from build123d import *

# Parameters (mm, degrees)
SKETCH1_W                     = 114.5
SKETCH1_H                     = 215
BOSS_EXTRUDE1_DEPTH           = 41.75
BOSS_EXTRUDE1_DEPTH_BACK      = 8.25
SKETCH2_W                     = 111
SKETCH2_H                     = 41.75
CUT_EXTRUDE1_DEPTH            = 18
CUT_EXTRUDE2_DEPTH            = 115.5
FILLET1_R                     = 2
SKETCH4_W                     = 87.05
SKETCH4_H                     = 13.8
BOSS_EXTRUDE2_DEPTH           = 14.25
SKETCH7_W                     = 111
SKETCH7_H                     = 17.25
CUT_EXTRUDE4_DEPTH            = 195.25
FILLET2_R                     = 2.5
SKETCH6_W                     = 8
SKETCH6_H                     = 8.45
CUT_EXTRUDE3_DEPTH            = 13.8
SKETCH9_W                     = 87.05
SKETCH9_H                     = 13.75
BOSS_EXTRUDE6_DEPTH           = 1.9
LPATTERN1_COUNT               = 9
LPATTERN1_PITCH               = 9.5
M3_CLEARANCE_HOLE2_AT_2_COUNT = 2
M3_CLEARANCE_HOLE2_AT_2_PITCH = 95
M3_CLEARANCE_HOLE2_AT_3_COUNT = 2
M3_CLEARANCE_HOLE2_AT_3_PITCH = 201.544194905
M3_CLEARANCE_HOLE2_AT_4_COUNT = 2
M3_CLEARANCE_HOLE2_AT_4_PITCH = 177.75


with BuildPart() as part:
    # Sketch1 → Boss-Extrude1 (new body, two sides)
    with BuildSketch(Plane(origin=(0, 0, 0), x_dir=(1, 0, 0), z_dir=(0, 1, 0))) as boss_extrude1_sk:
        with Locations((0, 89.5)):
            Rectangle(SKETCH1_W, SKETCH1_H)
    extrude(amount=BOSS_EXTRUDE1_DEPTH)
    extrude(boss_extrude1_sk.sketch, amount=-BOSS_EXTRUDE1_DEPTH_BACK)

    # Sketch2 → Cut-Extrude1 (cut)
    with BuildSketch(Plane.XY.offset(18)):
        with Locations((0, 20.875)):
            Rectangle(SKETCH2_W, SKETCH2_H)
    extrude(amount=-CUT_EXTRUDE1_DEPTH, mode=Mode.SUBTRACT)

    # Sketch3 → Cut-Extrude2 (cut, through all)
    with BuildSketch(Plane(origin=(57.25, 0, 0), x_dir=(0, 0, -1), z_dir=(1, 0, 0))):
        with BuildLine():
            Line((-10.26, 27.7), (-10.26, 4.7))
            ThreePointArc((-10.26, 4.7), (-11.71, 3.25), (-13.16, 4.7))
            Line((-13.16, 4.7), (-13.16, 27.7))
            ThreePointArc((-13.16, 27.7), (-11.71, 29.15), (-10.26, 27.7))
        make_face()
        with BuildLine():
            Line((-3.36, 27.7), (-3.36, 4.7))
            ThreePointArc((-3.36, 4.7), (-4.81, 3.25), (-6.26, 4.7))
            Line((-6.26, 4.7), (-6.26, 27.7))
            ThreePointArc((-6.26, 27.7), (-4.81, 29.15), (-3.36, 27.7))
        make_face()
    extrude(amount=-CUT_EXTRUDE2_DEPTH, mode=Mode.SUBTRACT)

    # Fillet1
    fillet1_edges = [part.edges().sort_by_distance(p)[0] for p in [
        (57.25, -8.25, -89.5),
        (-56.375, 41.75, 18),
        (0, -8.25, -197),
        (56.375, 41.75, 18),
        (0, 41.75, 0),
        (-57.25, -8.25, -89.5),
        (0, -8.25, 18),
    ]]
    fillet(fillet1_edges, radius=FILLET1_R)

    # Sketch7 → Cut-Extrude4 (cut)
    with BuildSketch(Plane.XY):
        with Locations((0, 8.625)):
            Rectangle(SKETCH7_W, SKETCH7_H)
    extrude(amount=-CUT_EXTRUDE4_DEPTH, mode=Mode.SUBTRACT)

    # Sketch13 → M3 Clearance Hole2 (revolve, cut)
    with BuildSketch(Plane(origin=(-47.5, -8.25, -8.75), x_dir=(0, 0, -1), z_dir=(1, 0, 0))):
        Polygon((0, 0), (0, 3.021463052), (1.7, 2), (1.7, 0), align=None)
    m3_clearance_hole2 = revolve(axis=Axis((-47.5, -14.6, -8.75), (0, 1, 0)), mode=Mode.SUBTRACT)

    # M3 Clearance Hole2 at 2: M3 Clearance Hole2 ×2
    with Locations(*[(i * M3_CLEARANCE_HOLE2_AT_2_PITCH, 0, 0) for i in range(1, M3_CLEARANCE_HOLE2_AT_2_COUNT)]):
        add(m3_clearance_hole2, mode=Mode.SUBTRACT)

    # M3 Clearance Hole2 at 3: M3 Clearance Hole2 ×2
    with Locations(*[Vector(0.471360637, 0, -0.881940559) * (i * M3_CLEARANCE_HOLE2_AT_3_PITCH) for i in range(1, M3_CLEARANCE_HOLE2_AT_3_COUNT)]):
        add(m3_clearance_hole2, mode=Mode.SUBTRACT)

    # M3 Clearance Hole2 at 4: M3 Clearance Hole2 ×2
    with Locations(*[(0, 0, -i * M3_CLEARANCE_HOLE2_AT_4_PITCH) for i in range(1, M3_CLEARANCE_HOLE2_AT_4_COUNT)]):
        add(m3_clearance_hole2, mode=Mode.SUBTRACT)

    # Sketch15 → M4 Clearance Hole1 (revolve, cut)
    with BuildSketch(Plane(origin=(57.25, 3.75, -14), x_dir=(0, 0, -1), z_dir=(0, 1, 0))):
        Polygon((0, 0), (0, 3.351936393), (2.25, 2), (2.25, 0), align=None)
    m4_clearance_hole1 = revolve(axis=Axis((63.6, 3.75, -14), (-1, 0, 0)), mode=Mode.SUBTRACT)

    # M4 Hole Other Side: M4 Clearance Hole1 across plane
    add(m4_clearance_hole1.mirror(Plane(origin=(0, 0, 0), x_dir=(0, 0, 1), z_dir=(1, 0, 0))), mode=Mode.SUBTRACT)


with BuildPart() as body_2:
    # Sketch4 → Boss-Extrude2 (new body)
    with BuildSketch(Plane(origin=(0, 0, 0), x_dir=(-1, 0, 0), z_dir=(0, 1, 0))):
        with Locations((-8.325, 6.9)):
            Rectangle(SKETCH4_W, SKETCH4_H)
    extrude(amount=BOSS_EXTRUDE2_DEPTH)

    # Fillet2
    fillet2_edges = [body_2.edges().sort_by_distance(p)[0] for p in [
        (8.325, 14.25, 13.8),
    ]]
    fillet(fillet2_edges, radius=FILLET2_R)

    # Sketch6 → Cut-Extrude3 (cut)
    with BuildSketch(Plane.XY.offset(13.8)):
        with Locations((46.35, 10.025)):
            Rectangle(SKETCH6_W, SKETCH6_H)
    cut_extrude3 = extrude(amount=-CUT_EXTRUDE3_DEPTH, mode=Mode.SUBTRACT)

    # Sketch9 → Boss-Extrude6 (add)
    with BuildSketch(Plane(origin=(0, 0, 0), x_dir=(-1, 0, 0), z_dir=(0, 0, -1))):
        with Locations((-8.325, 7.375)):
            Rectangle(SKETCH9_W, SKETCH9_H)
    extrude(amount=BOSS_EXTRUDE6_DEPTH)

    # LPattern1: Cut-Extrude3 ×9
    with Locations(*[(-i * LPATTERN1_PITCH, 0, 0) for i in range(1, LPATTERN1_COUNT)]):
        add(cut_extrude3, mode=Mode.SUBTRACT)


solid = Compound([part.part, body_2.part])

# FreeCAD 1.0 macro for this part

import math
import FreeCAD as App
import Part
import Sketcher

V = App.Vector
Q = App.Units.Quantity


def edges_at(feature, points):
    """Names of the edges that pass closest to the given points."""
    edges = feature.Shape.Edges
    near = lambda p: min(range(len(edges)), key=lambda i: edges[i].distToShape(Part.Vertex(*p))[0])
    return sorted({f"Edge{near(p) + 1}" for p in points})

doc = App.newDocument("Part")
body = doc.addObject("PartDesign::Body", "Body")

sketch1 = body.newObject("Sketcher::SketchObject", "Sketch")
sketch1.AttachmentSupport = (doc.getObject("XZ_Plane"), [""])
sketch1.MapMode = "FlatFace"
sketch1.addGeometry([
    Part.LineSegment(V(-57, -197, 0), V(-57, 18, 0)),
    Part.LineSegment(V(-57, 18, 0), V(57, 18, 0)),
    Part.LineSegment(V(57, 18, 0), V(57, -197, 0)),
    Part.LineSegment(V(57, -197, 0), V(-57, -197, 0)),
], False)
sketch1.addConstraint([
    Sketcher.Constraint("Coincident", 0, 2, 1, 1),
    Sketcher.Constraint("Coincident", 1, 2, 2, 1),
    Sketcher.Constraint("Coincident", 2, 2, 3, 1),
    Sketcher.Constraint("Coincident", 3, 2, 0, 1),
    Sketcher.Constraint("Vertical", 0),
    Sketcher.Constraint("Horizontal", 1),
    Sketcher.Constraint("Vertical", 2),
    Sketcher.Constraint("Horizontal", 3),
    Sketcher.Constraint("DistanceY", 0, 1, 0, 2, Q("215 mm")),
    Sketcher.Constraint("DistanceX", 1, 1, 1, 2, Q("114.5 mm")),
    Sketcher.Constraint("DistanceY", -1, 1, 0, 2, Q("18 mm")),
    Sketcher.Constraint("DistanceX", 0, 2, -1, 1, Q("57.25 mm")),
])
pad1 = body.newObject("PartDesign::Pad", "Pad")
pad1.Profile = sketch1
pad1.Type = "TwoLengths"
pad1.Length = 41.75
pad1.Length2 = 8.25
pad1.Reversed = True

sketch2 = body.newObject("Sketcher::SketchObject", "Sketch001")
sketch2.AttachmentSupport = (doc.getObject("XY_Plane"), [""])
sketch2.MapMode = "FlatFace"
sketch2.AttachmentOffset = App.Placement(V(0, 0, 18), App.Rotation())
sketch2.addGeometry([
    Part.LineSegment(V(-56, 42, 0), V(-56, 0, 0)),
    Part.LineSegment(V(-56, 0, 0), V(56, 0, 0)),
    Part.LineSegment(V(56, 0, 0), V(56, 42, 0)),
    Part.LineSegment(V(56, 42, 0), V(-56, 42, 0)),
], False)
sketch2.addConstraint([
    Sketcher.Constraint("Coincident", 0, 2, 1, 1),
    Sketcher.Constraint("Coincident", 1, 2, 2, 1),
    Sketcher.Constraint("Coincident", 2, 2, 3, 1),
    Sketcher.Constraint("Coincident", 3, 2, 0, 1),
    Sketcher.Constraint("Vertical", 0),
    Sketcher.Constraint("Horizontal", 1),
    Sketcher.Constraint("Vertical", 2),
    Sketcher.Constraint("Horizontal", 3),
    Sketcher.Constraint("Symmetric", 0, 2, 1, 2, -1, 1),
    Sketcher.Constraint("DistanceX", 1, 1, 1, 2, Q("111 mm")),
    Sketcher.Constraint("DistanceY", 0, 2, 0, 1, Q("41.75 mm")),
])
pocket1 = body.newObject("PartDesign::Pocket", "Pocket")
pocket1.Profile = sketch2
pocket1.Length = 18

sketch3 = body.newObject("Sketcher::SketchObject", "Sketch002")
sketch3.AttachmentSupport = (doc.getObject("YZ_Plane"), [""])
sketch3.MapMode = "FlatFace"
sketch3.AttachmentOffset = App.Placement(V(0, 0, 57.25), App.Rotation())
sketch3.addGeometry([
    Part.LineSegment(V(4.7, 10.3, 0), V(27.7, 10.3, 0)),
    Part.ArcOfCircle(Part.Circle(V(27.7, 11.7, 0), V(0, 0, 1), 1.4), math.radians(-90), math.radians(90)),
    Part.LineSegment(V(27.7, 13.2, 0), V(4.7, 13.2, 0)),
    Part.ArcOfCircle(Part.Circle(V(4.7, 11.7, 0), V(0, 0, 1), 1.4), math.radians(90), math.radians(270)),
    Part.LineSegment(V(4.7, 3.4, 0), V(27.7, 3.4, 0)),
    Part.ArcOfCircle(Part.Circle(V(27.7, 4.8, 0), V(0, 0, 1), 1.4), math.radians(-90), math.radians(90)),
    Part.LineSegment(V(27.7, 6.3, 0), V(4.7, 6.3, 0)),
    Part.ArcOfCircle(Part.Circle(V(4.7, 4.8, 0), V(0, 0, 1), 1.4), math.radians(90), math.radians(270)),
], False)
sketch3.addConstraint([
    Sketcher.Constraint("Tangent", 0, 2, 1, 1),
    Sketcher.Constraint("Tangent", 1, 2, 2, 1),
    Sketcher.Constraint("Tangent", 2, 2, 3, 1),
    Sketcher.Constraint("Tangent", 3, 2, 0, 1),
    Sketcher.Constraint("Tangent", 4, 2, 5, 1),
    Sketcher.Constraint("Tangent", 5, 2, 6, 1),
    Sketcher.Constraint("Tangent", 6, 2, 7, 1),
    Sketcher.Constraint("Tangent", 7, 2, 4, 1),
    Sketcher.Constraint("Horizontal", 0),
    Sketcher.Constraint("Horizontal", 2),
    Sketcher.Constraint("Horizontal", 4),
    Sketcher.Constraint("Horizontal", 6),
    Sketcher.Constraint("Equal", 3, 5),
    Sketcher.Constraint("Vertical", 1, 3, 5, 3),
    Sketcher.Constraint("Vertical", 3, 3, 7, 3),
    Sketcher.Constraint("DistanceX", 0, 1, 0, 2, Q("23 mm")),
    Sketcher.Constraint("Radius", 1, Q("1.45 mm")),
    Sketcher.Constraint("DistanceY", 5, 2, 0, 2, Q("4 mm")),
    Sketcher.Constraint("DistanceX", -1, 1, 1, 3, Q("27.7 mm")),
    Sketcher.Constraint("DistanceY", -1, 1, 1, 3, Q("11.71 mm")),
])
pocket2 = body.newObject("PartDesign::Pocket", "Pocket001")
pocket2.Profile = sketch3
pocket2.Type = "ThroughAll"
doc.recompute()

fillet = body.newObject("PartDesign::Fillet", "Fillet")
fillet.Base = (pocket2, edges_at(pocket2, [
    (57.25, -8.25, -89.5),
    (-56.375, 41.75, 18),
    (0, -8.25, -197),
    (56.375, 41.75, 18),
    (0, 41.75, 0),
    (-57.25, -8.25, -89.5),
    (0, -8.25, 18),
]))
fillet.Radius = 2

sketch4 = body.newObject("Sketcher::SketchObject", "Sketch003")
sketch4.AttachmentSupport = (doc.getObject("XY_Plane"), [""])
sketch4.MapMode = "FlatFace"
sketch4.addGeometry([
    Part.LineSegment(V(-56, 17, 0), V(-56, 0, 0)),
    Part.LineSegment(V(-56, 0, 0), V(56, 0, 0)),
    Part.LineSegment(V(56, 0, 0), V(56, 17, 0)),
    Part.LineSegment(V(56, 17, 0), V(-56, 17, 0)),
], False)
sketch4.addConstraint([
    Sketcher.Constraint("Coincident", 0, 2, 1, 1),
    Sketcher.Constraint("Coincident", 1, 2, 2, 1),
    Sketcher.Constraint("Coincident", 2, 2, 3, 1),
    Sketcher.Constraint("Coincident", 3, 2, 0, 1),
    Sketcher.Constraint("Vertical", 0),
    Sketcher.Constraint("Horizontal", 1),
    Sketcher.Constraint("Vertical", 2),
    Sketcher.Constraint("Horizontal", 3),
    Sketcher.Constraint("Symmetric", 0, 2, 1, 2, -1, 1),
    Sketcher.Constraint("DistanceX", 1, 1, 1, 2, Q("111 mm")),
    Sketcher.Constraint("DistanceY", 0, 2, 0, 1, Q("17.25 mm")),
])
pocket3 = body.newObject("PartDesign::Pocket", "Pocket002")
pocket3.Profile = sketch4
pocket3.Length = 195.25

sketch5 = body.newObject("Sketcher::SketchObject", "Sketch004")
sketch5.AttachmentSupport = (doc.getObject("YZ_Plane"), [""])
sketch5.MapMode = "FlatFace"
sketch5.AttachmentOffset = App.Placement(V(0, 0, -47.5), App.Rotation())
sketch5.addGeometry([
    Part.LineSegment(V(-5.2, -8.8, 0), V(-8.2, -8.8, 0)),
    Part.LineSegment(V(-8.2, -8.8, 0), V(-8.2, -10.4, 0)),
    Part.LineSegment(V(-8.2, -10.4, 0), V(-6.2, -10.4, 0)),
    Part.LineSegment(V(-6.2, -10.4, 0), V(-5.2, -8.8, 0)),
], False)
sketch5.addGeometry(Part.LineSegment(V(-8.2, -8.8, 0), V(-5.2, -8.8, 0)), True)
sketch5.addConstraint([
    Sketcher.Constraint("Coincident", 0, 2, 1, 1),
    Sketcher.Constraint("Coincident", 1, 2, 2, 1),
    Sketcher.Constraint("Coincident", 2, 2, 3, 1),
    Sketcher.Constraint("Coincident", 3, 2, 0, 1),
    Sketcher.Constraint("Horizontal", 0),
    Sketcher.Constraint("Vertical", 1),
    Sketcher.Constraint("Horizontal", 2),
    Sketcher.Constraint("Horizontal", 4),
    Sketcher.Constraint("Coincident", 4, 1, 0, 2),
    Sketcher.Constraint("Equal", 0, 4),
    Sketcher.Constraint("DistanceX", 2, 1, 2, 2, Q("2 mm")),
    Sketcher.Constraint("Angle", 3, Q("59 deg")),
    Sketcher.Constraint("DistanceY", 1, 2, 1, 1, Q("1.7 mm")),
    Sketcher.Constraint("DistanceX", 0, 2, -1, 1, Q("8.25 mm")),
    Sketcher.Constraint("DistanceY", 0, 2, -1, 1, Q("8.75 mm")),
])
groove = body.newObject("PartDesign::Groove", "Groove")
groove.Profile = sketch5
groove.ReferenceAxis = (sketch5, ["Axis0"])
groove.Angle = 360
doc.recompute()

linearpattern = body.newObject("PartDesign::LinearPattern", "LinearPattern")
linearpattern.Originals = [groove]
linearpattern.Direction = (doc.getObject("X_Axis"), [""])
linearpattern.Mode = "offset"
linearpattern.Offset = 95
linearpattern.Occurrences = 2
body.Tip = linearpattern
doc.recompute()

datumline = body.newObject("PartDesign::Line", "DatumLine")
datumline.Placement = App.Placement(V(0, 0, 0), App.Rotation(V(0, 0, 1), V(0.471360637, 0, -0.881940559)))
linearpattern2 = body.newObject("PartDesign::LinearPattern", "LinearPattern001")
linearpattern2.Originals = [groove]
linearpattern2.Direction = (datumline, [""])
linearpattern2.Mode = "offset"
linearpattern2.Offset = 201.544195
linearpattern2.Occurrences = 2
body.Tip = linearpattern2
doc.recompute()

linearpattern3 = body.newObject("PartDesign::LinearPattern", "LinearPattern002")
linearpattern3.Originals = [groove]
linearpattern3.Direction = (doc.getObject("Z_Axis"), [""])
linearpattern3.Mode = "offset"
linearpattern3.Offset = 177.75
linearpattern3.Occurrences = 2
linearpattern3.Reversed = True
body.Tip = linearpattern3

sketch6 = body.newObject("Sketcher::SketchObject", "Sketch005")
sketch6.AttachmentSupport = (doc.getObject("XZ_Plane"), [""])
sketch6.MapMode = "FlatFace"
sketch6.AttachmentOffset = App.Placement(V(0, 0, -3.75), App.Rotation())
sketch6.addGeometry([
    Part.LineSegment(V(53.9, -14, 0), V(57.2, -14, 0)),
    Part.LineSegment(V(57.2, -14, 0), V(57.2, -16.2, 0)),
    Part.LineSegment(V(57.2, -16.2, 0), V(55.2, -16.2, 0)),
    Part.LineSegment(V(55.2, -16.2, 0), V(53.9, -14, 0)),
], False)
sketch6.addGeometry(Part.LineSegment(V(57.2, -14, 0), V(53.9, -14, 0)), True)
sketch6.addConstraint([
    Sketcher.Constraint("Coincident", 0, 2, 1, 1),
    Sketcher.Constraint("Coincident", 1, 2, 2, 1),
    Sketcher.Constraint("Coincident", 2, 2, 3, 1),
    Sketcher.Constraint("Coincident", 3, 2, 0, 1),
    Sketcher.Constraint("Horizontal", 0),
    Sketcher.Constraint("Vertical", 1),
    Sketcher.Constraint("Horizontal", 2),
    Sketcher.Constraint("Horizontal", 4),
    Sketcher.Constraint("Coincident", 4, 1, 0, 2),
    Sketcher.Constraint("Equal", 0, 4),
    Sketcher.Constraint("DistanceX", 2, 2, 2, 1, Q("2 mm")),
    Sketcher.Constraint("Angle", 3, Q("121 deg")),
    Sketcher.Constraint("DistanceY", 0, 2, -1, 1, Q("14 mm")),
    Sketcher.Constraint("DistanceY", 1, 2, 1, 1, Q("2.25 mm")),
    Sketcher.Constraint("DistanceX", -1, 1, 0, 2, Q("57.25 mm")),
])
groove2 = body.newObject("PartDesign::Groove", "Groove001")
groove2.Profile = sketch6
groove2.ReferenceAxis = (sketch6, ["Axis0"])
groove2.Angle = 360
doc.recompute()

mirrored = body.newObject("PartDesign::Mirrored", "Mirrored")
mirrored.Originals = [groove2]
mirrored.MirrorPlane = (doc.getObject("YZ_Plane"), [""])
body.Tip = mirrored
body2 = doc.addObject("PartDesign::Body", "Body001")

sketch7 = body2.newObject("Sketcher::SketchObject", "Sketch006")
sketch7.AttachmentSupport = (doc.getObject("XZ_Plane001"), [""])
sketch7.MapMode = "FlatFace"
sketch7.addGeometry([
    Part.LineSegment(V(52, 14, 0), V(52, 0, 0)),
    Part.LineSegment(V(52, 0, 0), V(-35, 0, 0)),
    Part.LineSegment(V(-35, 0, 0), V(-35, 14, 0)),
    Part.LineSegment(V(-35, 14, 0), V(52, 14, 0)),
], False)
sketch7.addConstraint([
    Sketcher.Constraint("Coincident", 0, 2, 1, 1),
    Sketcher.Constraint("Coincident", 1, 2, 2, 1),
    Sketcher.Constraint("Coincident", 2, 2, 3, 1),
    Sketcher.Constraint("Coincident", 3, 2, 0, 1),
    Sketcher.Constraint("Vertical", 0),
    Sketcher.Constraint("Horizontal", 1),
    Sketcher.Constraint("Vertical", 2),
    Sketcher.Constraint("Horizontal", 3),
    Sketcher.Constraint("PointOnObject", 0, 2, -1),
    Sketcher.Constraint("DistanceY", 0, 2, 0, 1, Q("13.8 mm")),
    Sketcher.Constraint("DistanceX", 1, 2, 1, 1, Q("87.05 mm")),
    Sketcher.Constraint("DistanceX", 1, 2, -1, 1, Q("35.2 mm")),
])
pad2 = body2.newObject("PartDesign::Pad", "Pad001")
pad2.Profile = sketch7
pad2.Length = 14.25
pad2.Reversed = True
doc.recompute()

fillet2 = body2.newObject("PartDesign::Fillet", "Fillet001")
fillet2.Base = (pad2, edges_at(pad2, [(8.325, 14.25, 13.8)]))
fillet2.Radius = 2.5

sketch8 = body2.newObject("Sketcher::SketchObject", "Sketch007")
sketch8.AttachmentSupport = (doc.getObject("XY_Plane001"), [""])
sketch8.MapMode = "FlatFace"
sketch8.AttachmentOffset = App.Placement(V(0, 0, 13.8), App.Rotation())
sketch8.addGeometry([
    Part.LineSegment(V(42, 14, 0), V(42, 6, 0)),
    Part.LineSegment(V(42, 6, 0), V(50, 6, 0)),
    Part.LineSegment(V(50, 6, 0), V(50, 14, 0)),
    Part.LineSegment(V(50, 14, 0), V(42, 14, 0)),
], False)
sketch8.addConstraint([
    Sketcher.Constraint("Coincident", 0, 2, 1, 1),
    Sketcher.Constraint("Coincident", 1, 2, 2, 1),
    Sketcher.Constraint("Coincident", 2, 2, 3, 1),
    Sketcher.Constraint("Coincident", 3, 2, 0, 1),
    Sketcher.Constraint("Vertical", 0),
    Sketcher.Constraint("Horizontal", 1),
    Sketcher.Constraint("Vertical", 2),
    Sketcher.Constraint("Horizontal", 3),
    Sketcher.Constraint("DistanceX", 1, 1, 1, 2, Q("8 mm")),
    Sketcher.Constraint("DistanceY", 0, 2, 0, 1, Q("8.45 mm")),
    Sketcher.Constraint("DistanceY", -1, 1, 0, 2, Q("5.8 mm")),
    Sketcher.Constraint("DistanceX", -1, 1, 0, 2, Q("42.35 mm")),
])
pocket4 = body2.newObject("PartDesign::Pocket", "Pocket003")
pocket4.Profile = sketch8
pocket4.Length = 13.8

sketch9 = body2.newObject("Sketcher::SketchObject", "Sketch008")
sketch9.AttachmentSupport = (doc.getObject("XY_Plane001"), [""])
sketch9.MapMode = "FlatFace"
sketch9.addGeometry([
    Part.LineSegment(V(52, 14, 0), V(52, 0, 0)),
    Part.LineSegment(V(52, 0, 0), V(-35, 0, 0)),
    Part.LineSegment(V(-35, 0, 0), V(-35, 14, 0)),
    Part.LineSegment(V(-35, 14, 0), V(52, 14, 0)),
], False)
sketch9.addConstraint([
    Sketcher.Constraint("Coincident", 0, 2, 1, 1),
    Sketcher.Constraint("Coincident", 1, 2, 2, 1),
    Sketcher.Constraint("Coincident", 2, 2, 3, 1),
    Sketcher.Constraint("Coincident", 3, 2, 0, 1),
    Sketcher.Constraint("Vertical", 0),
    Sketcher.Constraint("Horizontal", 1),
    Sketcher.Constraint("Vertical", 2),
    Sketcher.Constraint("Horizontal", 3),
    Sketcher.Constraint("DistanceX", 1, 2, 1, 1, Q("87.05 mm")),
    Sketcher.Constraint("DistanceY", 0, 2, 0, 1, Q("13.75 mm")),
    Sketcher.Constraint("DistanceY", -1, 1, 0, 2, Q("0.5 mm")),
    Sketcher.Constraint("DistanceX", 1, 2, -1, 1, Q("35.2 mm")),
])
pad3 = body2.newObject("PartDesign::Pad", "Pad002")
pad3.Profile = sketch9
pad3.Length = 1.9
pad3.Reversed = True
doc.recompute()

linearpattern4 = body2.newObject("PartDesign::LinearPattern", "LinearPattern003")
linearpattern4.Originals = [pocket4]
linearpattern4.Direction = (doc.getObject("X_Axis001"), [""])
linearpattern4.Mode = "offset"
linearpattern4.Offset = 9.5
linearpattern4.Occurrences = 9
linearpattern4.Reversed = True
body2.Tip = linearpattern4

doc.recompute()
